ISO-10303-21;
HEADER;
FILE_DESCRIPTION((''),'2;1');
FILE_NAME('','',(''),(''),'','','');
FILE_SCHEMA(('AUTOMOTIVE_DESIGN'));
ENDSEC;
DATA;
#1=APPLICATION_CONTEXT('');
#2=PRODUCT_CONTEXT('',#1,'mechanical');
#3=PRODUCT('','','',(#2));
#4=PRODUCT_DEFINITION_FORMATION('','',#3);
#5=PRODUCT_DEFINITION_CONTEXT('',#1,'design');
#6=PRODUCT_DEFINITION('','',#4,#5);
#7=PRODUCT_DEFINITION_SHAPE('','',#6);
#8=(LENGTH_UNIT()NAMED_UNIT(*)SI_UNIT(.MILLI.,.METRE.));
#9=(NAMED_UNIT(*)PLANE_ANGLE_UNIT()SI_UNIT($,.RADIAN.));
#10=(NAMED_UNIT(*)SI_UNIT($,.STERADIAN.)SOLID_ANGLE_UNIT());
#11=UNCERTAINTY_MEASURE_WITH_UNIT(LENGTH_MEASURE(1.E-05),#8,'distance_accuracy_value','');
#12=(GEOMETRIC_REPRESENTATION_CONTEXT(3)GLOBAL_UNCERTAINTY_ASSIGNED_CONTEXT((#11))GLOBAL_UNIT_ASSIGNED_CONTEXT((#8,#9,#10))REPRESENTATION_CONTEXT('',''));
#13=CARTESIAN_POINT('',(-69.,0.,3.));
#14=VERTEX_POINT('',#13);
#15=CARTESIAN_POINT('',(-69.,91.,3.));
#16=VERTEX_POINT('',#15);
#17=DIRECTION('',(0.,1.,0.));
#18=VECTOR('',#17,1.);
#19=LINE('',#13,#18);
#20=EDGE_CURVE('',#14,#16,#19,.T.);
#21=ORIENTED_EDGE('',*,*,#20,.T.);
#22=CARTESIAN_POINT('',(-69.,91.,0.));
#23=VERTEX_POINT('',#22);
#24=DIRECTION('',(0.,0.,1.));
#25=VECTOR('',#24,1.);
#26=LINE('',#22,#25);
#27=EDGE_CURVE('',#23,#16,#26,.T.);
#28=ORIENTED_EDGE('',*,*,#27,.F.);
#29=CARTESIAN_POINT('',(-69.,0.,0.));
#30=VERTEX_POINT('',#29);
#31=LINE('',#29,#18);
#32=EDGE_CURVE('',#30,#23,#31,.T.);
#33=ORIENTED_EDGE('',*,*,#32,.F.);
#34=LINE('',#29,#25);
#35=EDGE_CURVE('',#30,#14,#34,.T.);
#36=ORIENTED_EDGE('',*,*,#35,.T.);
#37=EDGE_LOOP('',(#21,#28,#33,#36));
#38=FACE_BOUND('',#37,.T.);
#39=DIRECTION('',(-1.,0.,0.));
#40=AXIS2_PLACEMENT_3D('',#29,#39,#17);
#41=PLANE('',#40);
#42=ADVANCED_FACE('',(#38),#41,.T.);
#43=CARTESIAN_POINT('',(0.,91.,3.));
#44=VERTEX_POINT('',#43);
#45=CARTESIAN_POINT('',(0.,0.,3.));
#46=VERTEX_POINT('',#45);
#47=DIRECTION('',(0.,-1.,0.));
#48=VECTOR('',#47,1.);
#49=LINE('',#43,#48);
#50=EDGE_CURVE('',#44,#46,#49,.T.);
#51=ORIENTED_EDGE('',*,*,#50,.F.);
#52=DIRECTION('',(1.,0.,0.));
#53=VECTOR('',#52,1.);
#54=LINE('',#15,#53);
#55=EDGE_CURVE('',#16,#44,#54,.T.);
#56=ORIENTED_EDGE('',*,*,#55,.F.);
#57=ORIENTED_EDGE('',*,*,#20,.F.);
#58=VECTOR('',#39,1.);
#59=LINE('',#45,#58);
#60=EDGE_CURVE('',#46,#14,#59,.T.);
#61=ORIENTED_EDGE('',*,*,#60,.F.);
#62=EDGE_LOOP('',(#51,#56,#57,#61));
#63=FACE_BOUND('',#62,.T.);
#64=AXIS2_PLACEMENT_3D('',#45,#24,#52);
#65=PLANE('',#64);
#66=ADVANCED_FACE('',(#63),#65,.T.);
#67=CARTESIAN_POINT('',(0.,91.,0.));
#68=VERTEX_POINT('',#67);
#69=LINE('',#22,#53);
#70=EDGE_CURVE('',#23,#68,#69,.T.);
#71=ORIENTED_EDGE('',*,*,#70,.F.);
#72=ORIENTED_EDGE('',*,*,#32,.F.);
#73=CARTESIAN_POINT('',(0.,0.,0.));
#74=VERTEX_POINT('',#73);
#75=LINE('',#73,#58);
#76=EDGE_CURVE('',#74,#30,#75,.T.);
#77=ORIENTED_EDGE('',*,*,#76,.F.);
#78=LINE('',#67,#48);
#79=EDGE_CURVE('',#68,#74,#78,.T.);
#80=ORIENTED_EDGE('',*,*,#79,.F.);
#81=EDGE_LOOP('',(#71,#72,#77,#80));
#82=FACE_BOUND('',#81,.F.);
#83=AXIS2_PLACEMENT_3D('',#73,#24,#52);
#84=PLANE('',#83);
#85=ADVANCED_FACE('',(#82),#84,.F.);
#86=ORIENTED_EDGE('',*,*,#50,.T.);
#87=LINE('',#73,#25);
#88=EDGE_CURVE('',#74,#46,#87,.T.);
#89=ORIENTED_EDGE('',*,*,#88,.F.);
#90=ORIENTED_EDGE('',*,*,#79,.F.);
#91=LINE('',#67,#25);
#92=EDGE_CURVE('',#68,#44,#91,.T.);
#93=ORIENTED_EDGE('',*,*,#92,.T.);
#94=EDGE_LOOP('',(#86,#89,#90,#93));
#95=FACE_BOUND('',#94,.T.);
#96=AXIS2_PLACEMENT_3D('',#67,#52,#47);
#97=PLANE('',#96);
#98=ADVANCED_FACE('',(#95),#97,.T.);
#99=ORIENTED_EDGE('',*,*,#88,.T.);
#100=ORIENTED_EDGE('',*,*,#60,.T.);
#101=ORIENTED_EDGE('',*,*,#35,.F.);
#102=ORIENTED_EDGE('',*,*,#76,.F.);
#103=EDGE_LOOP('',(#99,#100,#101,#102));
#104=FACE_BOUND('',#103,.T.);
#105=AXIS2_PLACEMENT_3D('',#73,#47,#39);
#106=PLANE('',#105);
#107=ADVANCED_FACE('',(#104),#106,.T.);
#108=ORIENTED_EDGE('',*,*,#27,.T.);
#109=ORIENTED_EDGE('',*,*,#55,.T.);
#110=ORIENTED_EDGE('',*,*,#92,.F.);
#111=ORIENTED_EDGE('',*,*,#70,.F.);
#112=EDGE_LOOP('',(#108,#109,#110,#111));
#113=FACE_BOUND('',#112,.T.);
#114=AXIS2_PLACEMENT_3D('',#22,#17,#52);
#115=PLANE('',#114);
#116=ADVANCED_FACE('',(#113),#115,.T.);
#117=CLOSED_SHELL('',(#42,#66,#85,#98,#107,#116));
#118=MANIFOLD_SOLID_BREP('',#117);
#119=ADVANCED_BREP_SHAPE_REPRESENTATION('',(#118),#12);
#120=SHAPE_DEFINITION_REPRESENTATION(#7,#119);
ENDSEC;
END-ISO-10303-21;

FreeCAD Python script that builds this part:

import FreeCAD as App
import Part
import Sketcher


def add_polygon(sketch, points):
    """Adds a closed chain of lines whose ends are joined by coincident constraints."""
    first, n = sketch.GeometryCount, len(points)
    for a, b in zip(points, points[1:] + points[:1]):
        sketch.addGeometry(Part.LineSegment(App.Vector(*a, 0), App.Vector(*b, 0)), False)
    for i in range(n):
        sketch.addConstraint(Sketcher.Constraint("Coincident", first + i, 2, first + (i + 1) % n, 1))

doc = App.newDocument("Part")
body = doc.addObject("PartDesign::Body", "Body")

# Sketch on XY plane
sketch1 = body.newObject("Sketcher::SketchObject", "Sketch")
sketch1.AttachmentSupport = (doc.getObject("XY_Plane"), [""])
sketch1.MapMode = "FlatFace"
add_polygon(sketch1, [(-69, 0), (0, 0), (0, 91), (-69, 91)])  # lines 0-3
sketch1.addConstraint([
    Sketcher.Constraint("Horizontal", 0),
    Sketcher.Constraint("Vertical", 1),
    Sketcher.Constraint("Horizontal", 2),
    Sketcher.Constraint("Vertical", 3),
    Sketcher.Constraint("Coincident", 0, 2, -1, 1),
    Sketcher.Constraint("DistanceX", 0, 1, 0, 2, 69.0),
    Sketcher.Constraint("DistanceY", 1, 1, 1, 2, 91.0),
])
pad1 = body.newObject("PartDesign::Pad", "Pad")
pad1.Profile = sketch1
pad1.Length = 3

doc.recompute()
